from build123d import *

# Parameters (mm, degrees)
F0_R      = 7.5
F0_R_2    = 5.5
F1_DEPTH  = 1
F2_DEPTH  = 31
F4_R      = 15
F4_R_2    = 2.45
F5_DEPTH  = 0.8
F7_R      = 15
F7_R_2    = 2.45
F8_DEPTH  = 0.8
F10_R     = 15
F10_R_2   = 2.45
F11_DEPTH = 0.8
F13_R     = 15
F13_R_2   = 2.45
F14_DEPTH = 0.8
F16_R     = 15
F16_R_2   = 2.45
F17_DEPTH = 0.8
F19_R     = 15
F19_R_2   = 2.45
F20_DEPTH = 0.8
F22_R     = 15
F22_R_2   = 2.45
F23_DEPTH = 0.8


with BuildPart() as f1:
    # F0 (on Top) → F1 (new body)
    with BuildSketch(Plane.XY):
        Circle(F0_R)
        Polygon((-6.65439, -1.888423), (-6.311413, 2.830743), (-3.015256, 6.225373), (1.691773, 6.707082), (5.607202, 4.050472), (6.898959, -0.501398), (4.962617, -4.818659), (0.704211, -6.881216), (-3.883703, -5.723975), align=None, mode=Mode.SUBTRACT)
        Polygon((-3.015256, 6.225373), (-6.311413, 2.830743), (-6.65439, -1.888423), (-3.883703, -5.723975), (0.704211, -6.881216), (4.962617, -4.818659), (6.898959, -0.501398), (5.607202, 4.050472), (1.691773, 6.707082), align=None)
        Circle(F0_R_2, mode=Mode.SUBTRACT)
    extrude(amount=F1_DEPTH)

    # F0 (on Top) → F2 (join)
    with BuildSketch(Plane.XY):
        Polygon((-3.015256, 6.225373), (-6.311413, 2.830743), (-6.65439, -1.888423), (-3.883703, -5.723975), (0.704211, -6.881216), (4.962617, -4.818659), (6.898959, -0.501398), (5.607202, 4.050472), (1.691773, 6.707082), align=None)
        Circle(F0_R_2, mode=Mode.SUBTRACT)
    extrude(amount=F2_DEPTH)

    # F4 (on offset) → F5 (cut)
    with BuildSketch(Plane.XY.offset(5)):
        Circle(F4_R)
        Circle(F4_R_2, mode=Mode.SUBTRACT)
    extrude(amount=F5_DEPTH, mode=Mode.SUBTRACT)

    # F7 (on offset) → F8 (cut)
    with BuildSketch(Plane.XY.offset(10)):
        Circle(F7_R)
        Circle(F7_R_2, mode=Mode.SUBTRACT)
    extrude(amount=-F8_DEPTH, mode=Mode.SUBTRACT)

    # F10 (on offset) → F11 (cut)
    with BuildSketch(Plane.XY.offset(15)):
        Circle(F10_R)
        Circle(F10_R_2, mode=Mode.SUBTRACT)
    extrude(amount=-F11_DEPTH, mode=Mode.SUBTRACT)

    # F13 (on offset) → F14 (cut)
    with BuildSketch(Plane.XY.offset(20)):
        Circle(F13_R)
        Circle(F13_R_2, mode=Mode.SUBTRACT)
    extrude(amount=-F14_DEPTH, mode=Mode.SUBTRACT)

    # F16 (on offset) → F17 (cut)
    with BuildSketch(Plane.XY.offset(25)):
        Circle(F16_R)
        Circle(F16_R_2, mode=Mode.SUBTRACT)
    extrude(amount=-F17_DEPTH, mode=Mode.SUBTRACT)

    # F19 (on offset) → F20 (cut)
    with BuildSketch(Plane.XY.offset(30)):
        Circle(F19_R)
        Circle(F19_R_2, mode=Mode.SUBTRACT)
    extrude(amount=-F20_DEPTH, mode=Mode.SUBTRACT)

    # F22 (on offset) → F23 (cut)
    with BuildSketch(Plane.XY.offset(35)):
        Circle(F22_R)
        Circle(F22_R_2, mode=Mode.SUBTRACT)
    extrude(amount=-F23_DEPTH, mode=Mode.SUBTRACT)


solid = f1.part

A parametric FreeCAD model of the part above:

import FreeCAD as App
import Part
import Sketcher

doc = App.newDocument("Part")
body = doc.addObject("PartDesign::Body", "Body")
body.AllowCompound = True

# Sketch on XY plane
sketch1 = body.newObject("Sketcher::SketchObject", "Sketch")
sketch1.AttachmentSupport = (doc.getObject("XY_Plane"), [""])
sketch1.MapMode = "FlatFace"
sketch1.addGeometry([
    Part.Circle(App.Vector(0, 0, 0), App.Vector(0, 0, 1), 8),
    Part.Circle(App.Vector(0, 0, 0), App.Vector(0, 0, 1), 6),
], False)
sketch1.addConstraint([
    Sketcher.Constraint("Coincident", 0, 3, -1, 1),
    Sketcher.Constraint("Coincident", 1, 3, -1, 1),
    Sketcher.Constraint("Diameter", 0, 15.0),
    Sketcher.Constraint("Diameter", 1, 11.0),
])
pad1 = body.newObject("PartDesign::Pad", "Pad")
pad1.Profile = sketch1
pad1.Length = 1

# Sketch on XY plane
sketch2 = body.newObject("Sketcher::SketchObject", "Sketch001")
sketch2.AttachmentSupport = (doc.getObject("XY_Plane"), [""])
sketch2.MapMode = "FlatFace"
sketch2.addGeometry([
    Part.LineSegment(App.Vector(-3, 6.2, 0), App.Vector(-6.3, 2.8, 0)),  # 0
    Part.LineSegment(App.Vector(-6.3, 2.8, 0), App.Vector(-6.7, -1.9, 0)),  # 1
    Part.LineSegment(App.Vector(-6.7, -1.9, 0), App.Vector(-3.9, -5.7, 0)),  # 2
    Part.LineSegment(App.Vector(-3.9, -5.7, 0), App.Vector(0.7, -6.9, 0)),  # 3
    Part.LineSegment(App.Vector(0.7, -6.9, 0), App.Vector(5, -4.8, 0)),  # 4
    Part.LineSegment(App.Vector(5, -4.8, 0), App.Vector(6.9, -0.5, 0)),  # 5
    Part.LineSegment(App.Vector(6.9, -0.5, 0), App.Vector(5.6, 4.1, 0)),  # 6
    Part.LineSegment(App.Vector(5.6, 4.1, 0), App.Vector(1.7, 6.7, 0)),  # 7
    Part.LineSegment(App.Vector(1.7, 6.7, 0), App.Vector(-3, 6.2, 0)),  # 8
    Part.Circle(App.Vector(0, 0, 0), App.Vector(0, 0, 1), 5.5),  # 9
], False)
sketch2.addConstraint([
    Sketcher.Constraint("Coincident", 0, 2, 1, 1),
    Sketcher.Constraint("Coincident", 1, 2, 2, 1),
    Sketcher.Constraint("Coincident", 2, 2, 3, 1),
    Sketcher.Constraint("Coincident", 3, 2, 4, 1),
    Sketcher.Constraint("Coincident", 4, 2, 5, 1),
    Sketcher.Constraint("Coincident", 5, 2, 6, 1),
    Sketcher.Constraint("Coincident", 6, 2, 7, 1),
    Sketcher.Constraint("Coincident", 7, 2, 8, 1),
    Sketcher.Constraint("Coincident", 8, 2, 0, 1),
    Sketcher.Constraint("Coincident", 9, 3, -1, 1),
    Sketcher.Constraint("Equal", 0, 1),
    Sketcher.Constraint("Equal", 1, 2),
    Sketcher.Constraint("Equal", 2, 3),
    Sketcher.Constraint("Equal", 3, 4),
    Sketcher.Constraint("Equal", 4, 5),
    Sketcher.Constraint("Equal", 5, 6),
    Sketcher.Constraint("Equal", 6, 7),
    Sketcher.Constraint("Equal", 7, 8),
    Sketcher.Constraint("Diameter", 9, 11.0),
    Sketcher.Constraint("DistanceY", 5, 2, -1, 1, 0.501398),
    Sketcher.Constraint("DistanceX", 1, 2, 3, 2, 7.358601),
    Sketcher.Constraint("DistanceY", 6, 2, 8, 2, 2.174901),
    Sketcher.Constraint("DistanceX", 1, 2, -1, 1, 6.65439),
    Sketcher.Constraint("DistanceY", 4, 2, -1, 1, 4.818659),
    Sketcher.Constraint("DistanceX", -1, 1, 5, 2, 6.898959),
    Sketcher.Constraint("DistanceY", -1, 1, 7, 2, 6.707082),
    Sketcher.Constraint("DistanceX", 0, 2, 2, 2, 2.42771),
    Sketcher.Constraint("DistanceY", 2, 2, 0, 2, 8.554718),
    Sketcher.Constraint("DistanceY", 3, 2, 2, 2, 1.157241),
])
pad2 = body.newObject("PartDesign::Pad", "Pad001")
pad2.Profile = sketch2
pad2.Length = 31

# Sketch on XY plane
sketch3 = body.newObject("Sketcher::SketchObject", "Sketch002")
sketch3.AttachmentSupport = (doc.getObject("XY_Plane"), [""])
sketch3.MapMode = "FlatFace"
sketch3.AttachmentOffset = App.Placement(App.Vector(0, 0, 5), App.Rotation())
sketch3.addGeometry([
    Part.Circle(App.Vector(0, 0, 0), App.Vector(0, 0, 1), 15),
    Part.Circle(App.Vector(0, 0, 0), App.Vector(0, 0, 1), 2.5),
], False)
sketch3.addConstraint([
    Sketcher.Constraint("Coincident", 0, 3, -1, 1),
    Sketcher.Constraint("Coincident", 1, 3, -1, 1),
    Sketcher.Constraint("Diameter", 0, 30.0),
    Sketcher.Constraint("Diameter", 1, 4.9),
])
pocket1 = body.newObject("PartDesign::Pocket", "Pocket")
pocket1.Profile = sketch3
pocket1.Length = 0.8
pocket1.Reversed = True

# Sketch on XY plane
sketch4 = body.newObject("Sketcher::SketchObject", "Sketch003")
sketch4.AttachmentSupport = (doc.getObject("XY_Plane"), [""])
sketch4.MapMode = "FlatFace"
sketch4.AttachmentOffset = App.Placement(App.Vector(0, 0, 10), App.Rotation())
sketch4.addGeometry([
    Part.Circle(App.Vector(0, 0, 0), App.Vector(0, 0, 1), 15),
    Part.Circle(App.Vector(0, 0, 0), App.Vector(0, 0, 1), 2.5),
], False)
sketch4.addConstraint([
    Sketcher.Constraint("Coincident", 0, 3, -1, 1),
    Sketcher.Constraint("Coincident", 1, 3, -1, 1),
    Sketcher.Constraint("Diameter", 0, 30.0),
    Sketcher.Constraint("Diameter", 1, 4.9),
])
pocket2 = body.newObject("PartDesign::Pocket", "Pocket001")
pocket2.Profile = sketch4
pocket2.Length = 0.8

# Sketch on XY plane
sketch5 = body.newObject("Sketcher::SketchObject", "Sketch004")
sketch5.AttachmentSupport = (doc.getObject("XY_Plane"), [""])
sketch5.MapMode = "FlatFace"
sketch5.AttachmentOffset = App.Placement(App.Vector(0, 0, 15), App.Rotation())
sketch5.addGeometry([
    Part.Circle(App.Vector(0, 0, 0), App.Vector(0, 0, 1), 15),
    Part.Circle(App.Vector(0, 0, 0), App.Vector(0, 0, 1), 2.5),
], False)
sketch5.addConstraint([
    Sketcher.Constraint("Coincident", 0, 3, -1, 1),
    Sketcher.Constraint("Coincident", 1, 3, -1, 1),
    Sketcher.Constraint("Diameter", 0, 30.0),
    Sketcher.Constraint("Diameter", 1, 4.9),
])
pocket3 = body.newObject("PartDesign::Pocket", "Pocket002")
pocket3.Profile = sketch5
pocket3.Length = 0.8

# Sketch on XY plane
sketch6 = body.newObject("Sketcher::SketchObject", "Sketch005")
sketch6.AttachmentSupport = (doc.getObject("XY_Plane"), [""])
sketch6.MapMode = "FlatFace"
sketch6.AttachmentOffset = App.Placement(App.Vector(0, 0, 20), App.Rotation())
sketch6.addGeometry([
    Part.Circle(App.Vector(0, 0, 0), App.Vector(0, 0, 1), 15),
    Part.Circle(App.Vector(0, 0, 0), App.Vector(0, 0, 1), 2.5),
], False)
sketch6.addConstraint([
    Sketcher.Constraint("Coincident", 0, 3, -1, 1),
    Sketcher.Constraint("Coincident", 1, 3, -1, 1),
    Sketcher.Constraint("Diameter", 0, 30.0),
    Sketcher.Constraint("Diameter", 1, 4.9),
])
pocket4 = body.newObject("PartDesign::Pocket", "Pocket003")
pocket4.Profile = sketch6
pocket4.Length = 0.8

# Sketch on XY plane
sketch7 = body.newObject("Sketcher::SketchObject", "Sketch006")
sketch7.AttachmentSupport = (doc.getObject("XY_Plane"), [""])
sketch7.MapMode = "FlatFace"
sketch7.AttachmentOffset = App.Placement(App.Vector(0, 0, 25), App.Rotation())
sketch7.addGeometry([
    Part.Circle(App.Vector(0, 0, 0), App.Vector(0, 0, 1), 15),
    Part.Circle(App.Vector(0, 0, 0), App.Vector(0, 0, 1), 2.5),
], False)
sketch7.addConstraint([
    Sketcher.Constraint("Coincident", 0, 3, -1, 1),
    Sketcher.Constraint("Coincident", 1, 3, -1, 1),
    Sketcher.Constraint("Diameter", 0, 30.0),
    Sketcher.Constraint("Diameter", 1, 4.9),
])
pocket5 = body.newObject("PartDesign::Pocket", "Pocket004")
pocket5.Profile = sketch7
pocket5.Length = 0.8

# Sketch on XY plane
sketch8 = body.newObject("Sketcher::SketchObject", "Sketch007")
sketch8.AttachmentSupport = (doc.getObject("XY_Plane"), [""])
sketch8.MapMode = "FlatFace"
sketch8.AttachmentOffset = App.Placement(App.Vector(0, 0, 30), App.Rotation())
sketch8.addGeometry([
    Part.Circle(App.Vector(0, 0, 0), App.Vector(0, 0, 1), 15),
    Part.Circle(App.Vector(0, 0, 0), App.Vector(0, 0, 1), 2.5),
], False)
sketch8.addConstraint([
    Sketcher.Constraint("Coincident", 0, 3, -1, 1),
    Sketcher.Constraint("Coincident", 1, 3, -1, 1),
    Sketcher.Constraint("Diameter", 0, 30.0),
    Sketcher.Constraint("Diameter", 1, 4.9),
])
pocket6 = body.newObject("PartDesign::Pocket", "Pocket005")
pocket6.Profile = sketch8
pocket6.Length = 0.8

# Sketch on XY plane
sketch9 = body.newObject("Sketcher::SketchObject", "Sketch008")
sketch9.AttachmentSupport = (doc.getObject("XY_Plane"), [""])
sketch9.MapMode = "FlatFace"
sketch9.AttachmentOffset = App.Placement(App.Vector(0, 0, 35), App.Rotation())
sketch9.addGeometry([
    Part.Circle(App.Vector(0, 0, 0), App.Vector(0, 0, 1), 15),
    Part.Circle(App.Vector(0, 0, 0), App.Vector(0, 0, 1), 2.5),
], False)
sketch9.addConstraint([
    Sketcher.Constraint("Coincident", 0, 3, -1, 1),
    Sketcher.Constraint("Coincident", 1, 3, -1, 1),
    Sketcher.Constraint("Diameter", 0, 30.0),
    Sketcher.Constraint("Diameter", 1, 4.9),
])
pocket7 = body.newObject("PartDesign::Pocket", "Pocket006")
pocket7.Profile = sketch9
pocket7.Length = 0.8

doc.recompute()
